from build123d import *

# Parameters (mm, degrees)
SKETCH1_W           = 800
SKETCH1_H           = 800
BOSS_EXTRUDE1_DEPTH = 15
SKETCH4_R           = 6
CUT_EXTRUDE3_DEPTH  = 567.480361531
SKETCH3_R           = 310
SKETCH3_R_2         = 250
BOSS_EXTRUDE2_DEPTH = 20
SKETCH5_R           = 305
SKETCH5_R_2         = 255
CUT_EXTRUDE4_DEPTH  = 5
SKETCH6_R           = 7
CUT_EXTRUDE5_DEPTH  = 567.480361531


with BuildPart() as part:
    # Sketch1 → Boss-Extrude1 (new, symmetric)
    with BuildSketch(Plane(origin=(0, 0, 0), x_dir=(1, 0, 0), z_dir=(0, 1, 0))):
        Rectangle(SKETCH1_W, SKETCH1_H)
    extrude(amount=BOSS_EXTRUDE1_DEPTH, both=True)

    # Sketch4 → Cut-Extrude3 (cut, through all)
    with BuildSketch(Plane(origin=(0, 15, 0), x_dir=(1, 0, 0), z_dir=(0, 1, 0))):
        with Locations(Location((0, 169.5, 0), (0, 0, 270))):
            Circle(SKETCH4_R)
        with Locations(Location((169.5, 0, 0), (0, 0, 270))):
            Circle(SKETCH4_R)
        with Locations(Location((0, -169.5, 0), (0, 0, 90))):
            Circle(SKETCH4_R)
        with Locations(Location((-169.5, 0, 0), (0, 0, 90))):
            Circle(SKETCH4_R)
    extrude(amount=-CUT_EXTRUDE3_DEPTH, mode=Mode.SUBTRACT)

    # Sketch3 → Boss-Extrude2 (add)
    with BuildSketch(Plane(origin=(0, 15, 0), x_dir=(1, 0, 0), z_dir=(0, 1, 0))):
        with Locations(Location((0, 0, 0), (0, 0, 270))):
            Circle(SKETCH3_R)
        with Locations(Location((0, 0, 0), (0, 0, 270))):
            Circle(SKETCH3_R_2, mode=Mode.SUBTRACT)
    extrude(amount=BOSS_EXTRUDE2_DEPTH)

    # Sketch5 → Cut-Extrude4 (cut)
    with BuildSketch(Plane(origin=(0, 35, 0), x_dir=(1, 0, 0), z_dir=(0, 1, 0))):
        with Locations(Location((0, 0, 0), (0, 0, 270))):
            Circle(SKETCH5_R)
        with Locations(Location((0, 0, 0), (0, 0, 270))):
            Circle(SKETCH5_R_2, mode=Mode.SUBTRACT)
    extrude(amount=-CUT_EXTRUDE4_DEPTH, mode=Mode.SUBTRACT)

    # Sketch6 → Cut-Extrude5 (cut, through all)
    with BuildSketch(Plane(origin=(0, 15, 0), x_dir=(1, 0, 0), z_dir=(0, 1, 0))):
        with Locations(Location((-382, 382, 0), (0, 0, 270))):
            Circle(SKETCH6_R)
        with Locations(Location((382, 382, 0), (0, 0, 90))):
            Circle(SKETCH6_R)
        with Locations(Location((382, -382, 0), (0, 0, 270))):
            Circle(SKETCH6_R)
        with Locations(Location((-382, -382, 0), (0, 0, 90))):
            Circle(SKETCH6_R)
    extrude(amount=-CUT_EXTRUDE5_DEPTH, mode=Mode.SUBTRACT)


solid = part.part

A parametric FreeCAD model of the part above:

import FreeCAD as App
import Part
import Sketcher

V = App.Vector


def add_polygon(sketch, points):
    """Adds a closed chain of lines whose ends are joined by coincident constraints."""
    first, n = sketch.GeometryCount, len(points)
    for a, b in zip(points, points[1:] + points[:1]):
        sketch.addGeometry(Part.LineSegment(App.Vector(*a, 0), App.Vector(*b, 0)), False)
    for i in range(n):
        sketch.addConstraint(Sketcher.Constraint("Coincident", first + i, 2, first + (i + 1) % n, 1))

doc = App.newDocument("Part")
params = doc.addObject("Spreadsheet::Sheet", "Params")
for row, (alias, value) in enumerate([
    ("sketch1_width", "800 mm"),
    ("pad1_length", "30 mm"),
    ("sketch2_diameter", "12 mm"),
    ("sketch3_diameter", "620 mm"),
    ("sketch3_diameter2", "500 mm"),
    ("pad2_length", "20 mm"),
    ("sketch4_diameter", "610 mm"),
    ("sketch4_diameter2", "510 mm"),
    ("pocket2_length", "5 mm"),
    ("sketch5_diameter", "14 mm"),
], start=1):
    params.set(f"A{row}", alias)
    params.set(f"B{row}", "=" + value)
    params.setAlias(f"B{row}", alias)

body = doc.addObject("PartDesign::Body", "Body")

# Sketch on XZ plane
sketch1 = body.newObject("Sketcher::SketchObject", "Sketch")
sketch1.AttachmentSupport = (doc.getObject("XZ_Plane"), [""])
sketch1.MapMode = "FlatFace"
add_polygon(sketch1, [(-400, -400), (-400, 400), (400, 400), (400, -400)])  # lines 0-3
sketch1.addConstraint([
    Sketcher.Constraint("Vertical", 0),
    Sketcher.Constraint("Horizontal", 1),
    Sketcher.Constraint("Vertical", 2),
    Sketcher.Constraint("Horizontal", 3),
    Sketcher.Constraint("Symmetric", 0, 2, 2, 2, -1, 1),
    Sketcher.Constraint("Equal", 3, 0),
    Sketcher.Constraint("DistanceX", 1, 1, 1, 2, 800.0),
])
sketch1.setExpression("Constraints[10]", "Params.sketch1_width")
pad1 = body.newObject("PartDesign::Pad", "Pad")
pad1.Profile = sketch1
pad1.setExpression("Length", "Params.pad1_length")
pad1.Midplane = True

# Sketch on XZ plane
sketch2 = body.newObject("Sketcher::SketchObject", "Sketch001")
sketch2.AttachmentSupport = (doc.getObject("XZ_Plane"), [""])
sketch2.MapMode = "FlatFace"
sketch2.AttachmentOffset = App.Placement(V(0, 0, -15), App.Rotation())
sketch2.addGeometry([
    Part.Circle(V(0, -170, 0), V(0, 0, 1), 6),
    Part.Circle(V(170, 0, 0), V(0, 0, 1), 6),
    Part.Circle(V(0, 170, 0), V(0, 0, 1), 6),
    Part.Circle(V(-170, 0, 0), V(0, 0, 1), 6),
], False)
sketch2.addConstraint([
    Sketcher.Constraint("Equal", 0, 1),
    Sketcher.Constraint("Equal", 1, 2),
    Sketcher.Constraint("Equal", 2, 3),
    Sketcher.Constraint("Symmetric", 0, 3, 2, 3, -1, 1),
    Sketcher.Constraint("Symmetric", 1, 3, 3, 3, -1, 1),
    Sketcher.Constraint("PointOnObject", 0, 3, -2),
    Sketcher.Constraint("PointOnObject", 1, 3, -1),
    Sketcher.Constraint("Diameter", 0, 12.0),
    Sketcher.Constraint("DistanceY", 0, 3, 2, 3, 339.0),
    Sketcher.Constraint("DistanceX", 3, 3, 1, 3, 339.0),
])
sketch2.setExpression("Constraints[7]", "Params.sketch2_diameter")
pocket1 = body.newObject("PartDesign::Pocket", "Pocket")
pocket1.Profile = sketch2
pocket1.Type = "ThroughAll"
pocket1.Reversed = True

# Sketch on XZ plane
sketch3 = body.newObject("Sketcher::SketchObject", "Sketch002")
sketch3.AttachmentSupport = (doc.getObject("XZ_Plane"), [""])
sketch3.MapMode = "FlatFace"
sketch3.AttachmentOffset = App.Placement(V(0, 0, -15), App.Rotation())
sketch3.addGeometry([
    Part.Circle(V(0, 0, 0), V(0, 0, 1), 310),
    Part.Circle(V(0, 0, 0), V(0, 0, 1), 250),
], False)
sketch3.addConstraint([
    Sketcher.Constraint("Coincident", 0, 3, -1, 1),
    Sketcher.Constraint("Coincident", 1, 3, -1, 1),
    Sketcher.Constraint("Diameter", 0, 620.0),
    Sketcher.Constraint("Diameter", 1, 500.0),
])
sketch3.setExpression("Constraints[2]", "Params.sketch3_diameter")
sketch3.setExpression("Constraints[3]", "Params.sketch3_diameter2")
pad2 = body.newObject("PartDesign::Pad", "Pad001")
pad2.Profile = sketch3
pad2.setExpression("Length", "Params.pad2_length")
pad2.Reversed = True

# Sketch on XZ plane
sketch4 = body.newObject("Sketcher::SketchObject", "Sketch003")
sketch4.AttachmentSupport = (doc.getObject("XZ_Plane"), [""])
sketch4.MapMode = "FlatFace"
sketch4.AttachmentOffset = App.Placement(V(0, 0, -35), App.Rotation())
sketch4.addGeometry([
    Part.Circle(V(0, 0, 0), V(0, 0, 1), 305),
    Part.Circle(V(0, 0, 0), V(0, 0, 1), 255),
], False)
sketch4.addConstraint([
    Sketcher.Constraint("Coincident", 0, 3, -1, 1),
    Sketcher.Constraint("Coincident", 1, 3, -1, 1),
    Sketcher.Constraint("Diameter", 0, 610.0),
    Sketcher.Constraint("Diameter", 1, 510.0),
])
sketch4.setExpression("Constraints[2]", "Params.sketch4_diameter")
sketch4.setExpression("Constraints[3]", "Params.sketch4_diameter2")
pocket2 = body.newObject("PartDesign::Pocket", "Pocket001")
pocket2.Profile = sketch4
pocket2.setExpression("Length", "Params.pocket2_length")
pocket2.Reversed = True

# Sketch on XZ plane
sketch5 = body.newObject("Sketcher::SketchObject", "Sketch004")
sketch5.AttachmentSupport = (doc.getObject("XZ_Plane"), [""])
sketch5.MapMode = "FlatFace"
sketch5.AttachmentOffset = App.Placement(V(0, 0, -15), App.Rotation())
sketch5.addGeometry([
    Part.Circle(V(-382, -382, 0), V(0, 0, 1), 7),
    Part.Circle(V(382, -382, 0), V(0, 0, 1), 7),
    Part.Circle(V(382, 382, 0), V(0, 0, 1), 7),
    Part.Circle(V(-382, 382, 0), V(0, 0, 1), 7),
], False)
sketch5.addConstraint([
    Sketcher.Constraint("Equal", 0, 1),
    Sketcher.Constraint("Equal", 1, 2),
    Sketcher.Constraint("Equal", 2, 3),
    Sketcher.Constraint("Symmetric", 0, 3, 2, 3, -1, 1),
    Sketcher.Constraint("Symmetric", 1, 3, 3, 3, -1, 1),
    Sketcher.Constraint("Symmetric", 0, 3, 1, 3, -2),
    Sketcher.Constraint("Diameter", 0, 14.0),
    Sketcher.Constraint("DistanceX", 0, 3, -1, 1, 382.0),
    Sketcher.Constraint("DistanceY", 0, 3, -1, 1, 382.0),
])
sketch5.setExpression("Constraints[6]", "Params.sketch5_diameter")
pocket3 = body.newObject("PartDesign::Pocket", "Pocket002")
pocket3.Profile = sketch5
pocket3.Type = "ThroughAll"
pocket3.Reversed = True

doc.recompute()
